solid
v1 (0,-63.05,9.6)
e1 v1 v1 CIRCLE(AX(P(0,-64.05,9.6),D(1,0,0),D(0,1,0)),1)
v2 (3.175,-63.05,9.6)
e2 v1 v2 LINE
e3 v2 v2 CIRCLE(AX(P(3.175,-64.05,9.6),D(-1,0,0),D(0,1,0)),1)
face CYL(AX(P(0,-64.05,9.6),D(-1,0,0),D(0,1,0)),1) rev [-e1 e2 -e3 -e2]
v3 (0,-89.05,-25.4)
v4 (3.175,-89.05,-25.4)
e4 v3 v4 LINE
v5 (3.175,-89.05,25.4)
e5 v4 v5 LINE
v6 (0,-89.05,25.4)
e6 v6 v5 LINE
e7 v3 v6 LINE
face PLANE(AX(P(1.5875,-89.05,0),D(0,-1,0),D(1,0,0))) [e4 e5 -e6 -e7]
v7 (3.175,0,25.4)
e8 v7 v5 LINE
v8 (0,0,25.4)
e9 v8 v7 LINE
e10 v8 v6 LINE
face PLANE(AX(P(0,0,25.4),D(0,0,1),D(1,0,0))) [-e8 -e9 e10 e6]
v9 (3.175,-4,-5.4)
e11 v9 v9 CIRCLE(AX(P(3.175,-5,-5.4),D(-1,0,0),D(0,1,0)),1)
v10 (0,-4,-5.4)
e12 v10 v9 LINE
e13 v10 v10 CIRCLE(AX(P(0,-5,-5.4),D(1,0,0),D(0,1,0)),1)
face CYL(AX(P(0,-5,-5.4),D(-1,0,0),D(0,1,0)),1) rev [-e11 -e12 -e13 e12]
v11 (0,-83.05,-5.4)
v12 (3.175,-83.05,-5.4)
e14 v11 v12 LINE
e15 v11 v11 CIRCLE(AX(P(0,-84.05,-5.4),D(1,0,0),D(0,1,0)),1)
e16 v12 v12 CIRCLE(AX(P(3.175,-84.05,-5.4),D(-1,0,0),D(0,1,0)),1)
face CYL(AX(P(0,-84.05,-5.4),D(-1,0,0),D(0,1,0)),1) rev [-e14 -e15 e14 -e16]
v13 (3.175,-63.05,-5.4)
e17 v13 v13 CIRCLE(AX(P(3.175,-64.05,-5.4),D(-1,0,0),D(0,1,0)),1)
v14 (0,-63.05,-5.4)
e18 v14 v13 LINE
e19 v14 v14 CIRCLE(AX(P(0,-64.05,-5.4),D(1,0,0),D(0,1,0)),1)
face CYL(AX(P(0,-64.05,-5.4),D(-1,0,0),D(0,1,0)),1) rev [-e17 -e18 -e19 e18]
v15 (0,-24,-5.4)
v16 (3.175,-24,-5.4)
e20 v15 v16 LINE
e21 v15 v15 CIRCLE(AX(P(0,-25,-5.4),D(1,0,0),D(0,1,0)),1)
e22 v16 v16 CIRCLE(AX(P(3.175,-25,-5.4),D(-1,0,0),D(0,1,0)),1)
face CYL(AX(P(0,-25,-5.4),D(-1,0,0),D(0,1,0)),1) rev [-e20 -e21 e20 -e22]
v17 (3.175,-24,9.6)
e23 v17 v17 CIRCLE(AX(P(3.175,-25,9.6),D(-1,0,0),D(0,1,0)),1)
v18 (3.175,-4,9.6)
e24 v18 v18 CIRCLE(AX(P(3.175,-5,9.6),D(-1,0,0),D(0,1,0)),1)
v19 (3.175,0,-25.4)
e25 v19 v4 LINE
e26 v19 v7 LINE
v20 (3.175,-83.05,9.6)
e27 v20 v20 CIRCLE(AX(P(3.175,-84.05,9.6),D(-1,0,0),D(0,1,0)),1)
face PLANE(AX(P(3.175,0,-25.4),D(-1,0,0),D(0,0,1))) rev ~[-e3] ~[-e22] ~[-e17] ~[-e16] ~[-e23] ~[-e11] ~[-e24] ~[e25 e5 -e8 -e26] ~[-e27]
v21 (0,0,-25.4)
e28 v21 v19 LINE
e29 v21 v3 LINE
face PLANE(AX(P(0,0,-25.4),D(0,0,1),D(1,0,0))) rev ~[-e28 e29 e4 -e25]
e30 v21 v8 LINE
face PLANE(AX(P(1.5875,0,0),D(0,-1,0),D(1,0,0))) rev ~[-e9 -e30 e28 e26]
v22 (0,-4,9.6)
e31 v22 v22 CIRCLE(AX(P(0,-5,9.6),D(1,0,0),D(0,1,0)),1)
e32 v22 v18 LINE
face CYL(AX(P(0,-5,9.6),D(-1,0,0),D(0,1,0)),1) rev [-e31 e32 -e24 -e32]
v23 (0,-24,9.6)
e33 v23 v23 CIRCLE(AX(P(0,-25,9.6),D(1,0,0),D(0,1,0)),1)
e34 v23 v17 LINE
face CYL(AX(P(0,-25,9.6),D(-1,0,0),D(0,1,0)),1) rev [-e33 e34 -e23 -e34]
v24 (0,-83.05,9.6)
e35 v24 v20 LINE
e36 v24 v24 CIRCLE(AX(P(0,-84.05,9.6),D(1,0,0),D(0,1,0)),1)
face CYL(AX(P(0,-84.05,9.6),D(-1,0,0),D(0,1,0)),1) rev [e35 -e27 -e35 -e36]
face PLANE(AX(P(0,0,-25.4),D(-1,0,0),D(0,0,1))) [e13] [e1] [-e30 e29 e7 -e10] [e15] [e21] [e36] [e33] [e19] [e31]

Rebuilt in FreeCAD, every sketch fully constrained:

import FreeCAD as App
import Part
import Sketcher

V = App.Vector
Q = App.Units.Quantity

doc = App.newDocument("Part")
params = doc.addObject("Spreadsheet::Sheet", "Params")
for row, (alias, value) in enumerate([
    ("sketch1_height", "2 in"),
    ("sketch1_width", "0.125 in"),
    ("pad1_length", "89.05 mm"),
], start=1):
    params.set(f"A{row}", alias)
    params.set(f"B{row}", "=" + value)
    params.setAlias(f"B{row}", alias)

body = doc.addObject("PartDesign::Body", "Body")

# Sketch on XZ plane
sketch1 = doc.addObject("Sketcher::SketchObject", "Sketch")
body.addObject(sketch1)
sketch1.AttachmentSupport = (doc.XZ_Plane, [""])
sketch1.MapMode = "FlatFace"
sketch1.addGeometry([
    Part.LineSegment(V(0, 25.4, 0), V(0, -25.4, 0)),
    Part.LineSegment(V(0, -25.4, 0), V(3.2, -25.4, 0)),
    Part.LineSegment(V(3.2, -25.4, 0), V(3.2, 25.4, 0)),
    Part.LineSegment(V(3.2, 25.4, 0), V(0, 25.4, 0)),
], False)
sketch1.addConstraint([
    Sketcher.Constraint("Coincident", 0, 2, 1, 1),
    Sketcher.Constraint("Coincident", 1, 2, 2, 1),
    Sketcher.Constraint("Coincident", 2, 2, 3, 1),
    Sketcher.Constraint("Coincident", 3, 2, 0, 1),
    Sketcher.Constraint("Vertical", 0),
    Sketcher.Constraint("Horizontal", 1),
    Sketcher.Constraint("Vertical", 2),
    Sketcher.Constraint("Horizontal", 3),
    Sketcher.Constraint("Symmetric", 0, 2, 3, 2, -1, 1),
    Sketcher.Constraint("DistanceY", 0, 2, 0, 1, Q("2 in")),
    Sketcher.Constraint("DistanceX", 1, 1, 1, 2, Q("0.125 in")),
])
sketch1.setExpression("Constraints[9]", "Params.sketch1_height")
sketch1.setExpression("Constraints[10]", "Params.sketch1_width")
pad1 = doc.addObject("PartDesign::Pad", "Pad")
body.addObject(pad1)
pad1.Profile = sketch1
pad1.setExpression("Length", "Params.pad1_length")

# Sketch on YZ plane
sketch2 = doc.addObject("Sketcher::SketchObject", "Sketch001")
body.addObject(sketch2)
sketch2.AttachmentSupport = (doc.YZ_Plane, [""])
sketch2.MapMode = "FlatFace"
sketch2.addGeometry([
    Part.Circle(V(-84, 9.6, 0), V(0, 0, 1), 1),  # 0
    Part.Circle(V(-64, 9.6, 0), V(0, 0, 1), 1),  # 1
    Part.Circle(V(-64, -5.4, 0), V(0, 0, 1), 1),  # 2
    Part.Circle(V(-84, -5.4, 0), V(0, 0, 1), 1),  # 3
    Part.Circle(V(-25, -5.4, 0), V(0, 0, 1), 1),  # 4
    Part.Circle(V(-25, 9.6, 0), V(0, 0, 1), 1),  # 5
    Part.Circle(V(-5, -5.4, 0), V(0, 0, 1), 1),  # 6
    Part.Circle(V(-5, 9.6, 0), V(0, 0, 1), 1),  # 7
], False)
sketch2.addConstraint([
    Sketcher.Constraint("Equal", 0, 1),
    Sketcher.Constraint("Equal", 1, 2),
    Sketcher.Constraint("Equal", 2, 3),
    Sketcher.Constraint("Equal", 3, 4),
    Sketcher.Constraint("Equal", 4, 5),
    Sketcher.Constraint("Equal", 5, 6),
    Sketcher.Constraint("Equal", 6, 7),
    Sketcher.Constraint("Horizontal", 0, 3, 1, 3),
    Sketcher.Constraint("Horizontal", 2, 3, 3, 3),
    Sketcher.Constraint("Horizontal", 3, 3, 4, 3),
    Sketcher.Constraint("Horizontal", 1, 3, 5, 3),
    Sketcher.Constraint("Horizontal", 4, 3, 6, 3),
    Sketcher.Constraint("Horizontal", 5, 3, 7, 3),
    Sketcher.Constraint("Vertical", 1, 3, 2, 3),
    Sketcher.Constraint("Vertical", 0, 3, 3, 3),
    Sketcher.Constraint("Vertical", 4, 3, 5, 3),
    Sketcher.Constraint("Vertical", 6, 3, 7, 3),
    Sketcher.Constraint("Diameter", 0, Q("2 mm")),
    Sketcher.Constraint("DistanceX", 0, 3, -1, 1, Q("84.05 mm")),
    Sketcher.Constraint("DistanceY", -1, 1, 0, 3, Q("9.6 mm")),
    Sketcher.Constraint("DistanceX", 1, 3, -1, 1, Q("64.05 mm")),
    Sketcher.Constraint("DistanceY", 2, 3, -1, 1, Q("5.4 mm")),
    Sketcher.Constraint("DistanceX", 4, 3, -1, 1, Q("25 mm")),
    Sketcher.Constraint("DistanceX", 6, 3, -1, 1, Q("5 mm")),
])
pocket1 = doc.addObject("PartDesign::Pocket", "Pocket")
body.addObject(pocket1)
pocket1.Profile = sketch2
pocket1.Type = "ThroughAll"
pocket1.Reversed = True

doc.recompute()
